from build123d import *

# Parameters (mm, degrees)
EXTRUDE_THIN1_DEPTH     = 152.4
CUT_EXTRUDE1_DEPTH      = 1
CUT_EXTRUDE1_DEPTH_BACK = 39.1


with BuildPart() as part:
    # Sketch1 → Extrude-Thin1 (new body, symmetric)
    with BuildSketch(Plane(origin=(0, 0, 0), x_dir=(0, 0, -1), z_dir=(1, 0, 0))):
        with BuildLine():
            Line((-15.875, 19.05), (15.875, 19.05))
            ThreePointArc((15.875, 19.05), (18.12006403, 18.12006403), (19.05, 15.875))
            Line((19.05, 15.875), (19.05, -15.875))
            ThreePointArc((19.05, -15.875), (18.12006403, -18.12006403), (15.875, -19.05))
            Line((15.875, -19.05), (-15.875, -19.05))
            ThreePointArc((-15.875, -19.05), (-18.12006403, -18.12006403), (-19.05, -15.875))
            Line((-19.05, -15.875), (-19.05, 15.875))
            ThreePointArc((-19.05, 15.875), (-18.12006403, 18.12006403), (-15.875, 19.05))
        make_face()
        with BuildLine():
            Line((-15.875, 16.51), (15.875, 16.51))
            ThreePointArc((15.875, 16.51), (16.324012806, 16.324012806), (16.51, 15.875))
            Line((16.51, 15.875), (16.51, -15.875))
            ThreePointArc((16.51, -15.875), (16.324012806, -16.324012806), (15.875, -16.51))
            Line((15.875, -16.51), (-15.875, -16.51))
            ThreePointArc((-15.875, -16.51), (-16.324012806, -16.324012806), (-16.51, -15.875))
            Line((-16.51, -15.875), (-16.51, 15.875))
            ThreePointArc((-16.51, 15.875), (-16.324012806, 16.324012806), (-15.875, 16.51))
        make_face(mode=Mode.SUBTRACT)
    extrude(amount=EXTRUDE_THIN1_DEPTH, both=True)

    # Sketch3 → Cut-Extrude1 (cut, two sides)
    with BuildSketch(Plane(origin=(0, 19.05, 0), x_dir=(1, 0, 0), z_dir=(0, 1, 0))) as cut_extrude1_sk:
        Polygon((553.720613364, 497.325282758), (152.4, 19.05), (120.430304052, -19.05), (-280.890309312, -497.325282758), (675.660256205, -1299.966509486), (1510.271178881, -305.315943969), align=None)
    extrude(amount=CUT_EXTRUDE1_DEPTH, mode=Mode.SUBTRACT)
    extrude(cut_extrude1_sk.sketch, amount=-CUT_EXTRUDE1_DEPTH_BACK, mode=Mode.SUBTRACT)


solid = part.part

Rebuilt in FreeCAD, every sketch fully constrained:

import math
import FreeCAD as App
import Part
import Sketcher

V = App.Vector
Q = App.Units.Quantity

doc = App.newDocument("Part")
body = doc.addObject("PartDesign::Body", "Body")

# Sketch on YZ plane
sketch1 = doc.addObject("Sketcher::SketchObject", "Sketch")
body.addObject(sketch1)
sketch1.AttachmentSupport = (doc.YZ_Plane, [""])
sketch1.MapMode = "FlatFace"
sketch1.addGeometry([
    Part.LineSegment(V(19.05, -15.875, 0), V(19.05, 15.875, 0)),  # 0
    Part.ArcOfCircle(Part.Circle(V(15.875, 15.875, 0), V(0, 0, 1), 3.175), math.radians(0), math.radians(90)),  # 1
    Part.LineSegment(V(15.875, 19.05, 0), V(-15.875, 19.05, 0)),  # 2
    Part.ArcOfCircle(Part.Circle(V(-15.875, 15.875, 0), V(0, 0, 1), 3.175), math.radians(90), math.radians(180)),  # 3
    Part.LineSegment(V(-19.05, 15.875, 0), V(-19.05, -15.875, 0)),  # 4
    Part.ArcOfCircle(Part.Circle(V(-15.875, -15.875, 0), V(0, 0, 1), 3.175), math.radians(-180), math.radians(-90)),  # 5
    Part.LineSegment(V(-15.875, -19.05, 0), V(15.875, -19.05, 0)),  # 6
    Part.ArcOfCircle(Part.Circle(V(15.875, -15.875, 0), V(0, 0, 1), 3.175), math.radians(-90), math.radians(0)),  # 7
    Part.LineSegment(V(16.51, 15.875, 0), V(16.51, -15.875, 0)),  # 8
    Part.ArcOfCircle(Part.Circle(V(15.875, -15.875, 0), V(0, 0, 1), 0.635), math.radians(-90), math.radians(0)),  # 9
    Part.LineSegment(V(15.875, -16.51, 0), V(-15.875, -16.51, 0)),  # 10
    Part.ArcOfCircle(Part.Circle(V(-15.875, -15.875, 0), V(0, 0, 1), 0.635), math.radians(180), math.radians(270)),  # 11
    Part.LineSegment(V(-16.51, -15.875, 0), V(-16.51, 15.875, 0)),  # 12
    Part.ArcOfCircle(Part.Circle(V(-15.875, 15.875, 0), V(0, 0, 1), 0.635), math.radians(90), math.radians(180)),  # 13
    Part.LineSegment(V(-15.875, 16.51, 0), V(15.875, 16.51, 0)),  # 14
    Part.ArcOfCircle(Part.Circle(V(15.875, 15.875, 0), V(0, 0, 1), 0.635), math.radians(0), math.radians(90)),  # 15
], False)
sketch1.addConstraint([
    Sketcher.Constraint("Tangent", 0, 2, 1, 1),
    Sketcher.Constraint("Tangent", 1, 2, 2, 1),
    Sketcher.Constraint("Tangent", 2, 2, 3, 1),
    Sketcher.Constraint("Tangent", 3, 2, 4, 1),
    Sketcher.Constraint("Tangent", 4, 2, 5, 1),
    Sketcher.Constraint("Tangent", 5, 2, 6, 1),
    Sketcher.Constraint("Tangent", 6, 2, 7, 1),
    Sketcher.Constraint("Tangent", 7, 2, 0, 1),
    Sketcher.Constraint("Tangent", 8, 2, 9, 2),
    Sketcher.Constraint("Tangent", 9, 1, 10, 1),
    Sketcher.Constraint("Tangent", 10, 2, 11, 2),
    Sketcher.Constraint("Tangent", 11, 1, 12, 1),
    Sketcher.Constraint("Tangent", 12, 2, 13, 2),
    Sketcher.Constraint("Tangent", 13, 1, 14, 1),
    Sketcher.Constraint("Tangent", 14, 2, 15, 2),
    Sketcher.Constraint("Tangent", 15, 1, 8, 1),
    Sketcher.Constraint("Vertical", 0),
    Sketcher.Constraint("Horizontal", 2),
    Sketcher.Constraint("Vertical", 4),
    Sketcher.Constraint("Horizontal", 6),
    Sketcher.Constraint("Vertical", 8),
    Sketcher.Constraint("Horizontal", 10),
    Sketcher.Constraint("Vertical", 12),
    Sketcher.Constraint("Horizontal", 14),
    Sketcher.Constraint("Coincident", 9, 3, 7, 3),
    Sketcher.Constraint("Coincident", 11, 3, 5, 3),
    Sketcher.Constraint("Coincident", 13, 3, 3, 3),
    Sketcher.Constraint("Equal", 1, 3),
    Sketcher.Constraint("Equal", 3, 5),
    Sketcher.Constraint("Equal", 5, 7),
    Sketcher.Constraint("Equal", 13, 15),
    Sketcher.Constraint("Symmetric", 1, 3, 5, 3, -1, 1),
    Sketcher.Constraint("Equal", 14, 0),
    Sketcher.Constraint("Radius", 1, Q("0.125 in")),
    Sketcher.Constraint("Radius", 9, Q("0.025 in")),
    Sketcher.Constraint("DistanceX", 2, 2, 2, 1, Q("1.25 in")),
])
pad1 = doc.addObject("PartDesign::Pad", "Pad")
body.addObject(pad1)
pad1.Profile = sketch1
pad1.Length = Q("12 in")
pad1.Midplane = True

# Sketch on XZ plane
sketch2 = doc.addObject("Sketcher::SketchObject", "Sketch001")
body.addObject(sketch2)
sketch2.AttachmentSupport = (doc.XZ_Plane, [""])
sketch2.MapMode = "FlatFace"
sketch2.AttachmentOffset = App.Placement(V(0, 0, -0.75 * 25.4), App.Rotation())
sketch2.addGeometry([
    Part.LineSegment(V(553.720613, -497.325283, 0), V(152.4, -19.05, 0)),  # 0
    Part.LineSegment(V(152.4, -19.05, 0), V(120.430304, 19.05, 0)),  # 1
    Part.LineSegment(V(120.430304, 19.05, 0), V(-280.890309, 497.325283, 0)),  # 2
    Part.LineSegment(V(-280.890309, 497.325283, 0), V(675.660256, 1299.966509, 0)),  # 3
    Part.LineSegment(V(675.660256, 1299.966509, 0), V(1510.271179, 305.315944, 0)),  # 4
    Part.LineSegment(V(1510.271179, 305.315944, 0), V(553.720613, -497.325283, 0)),  # 5
], False)
sketch2.addConstraint([
    Sketcher.Constraint("Coincident", 0, 2, 1, 1),
    Sketcher.Constraint("Coincident", 1, 2, 2, 1),
    Sketcher.Constraint("Coincident", 2, 2, 3, 1),
    Sketcher.Constraint("Coincident", 3, 2, 4, 1),
    Sketcher.Constraint("Coincident", 4, 2, 5, 1),
    Sketcher.Constraint("Coincident", 5, 2, 0, 1),
    Sketcher.Constraint("Parallel", 0, 1),
    Sketcher.Constraint("Parallel", 1, 2),
    Sketcher.Constraint("Perpendicular", 2, 3),
    Sketcher.Constraint("Perpendicular", 3, 4),
    Sketcher.Constraint("Perpendicular", 4, 5),
    Sketcher.Constraint("Equal", 0, 2),
    Sketcher.Constraint("DistanceX", -1, 1, 0, 2, Q("6 in")),
    Sketcher.Constraint("Angle", 0, Q("130 deg")),
    Sketcher.Constraint("DistanceY", 0, 2, 1, 2, Q("1.5 in")),
    Sketcher.Constraint("DistanceY", 0, 2, -1, 1, Q("0.75 in")),
    Sketcher.Constraint("Distance", 4, Q("1298.424099 mm")),
    Sketcher.Constraint("Distance", 3, Q("1248.688081 mm")),
])
pocket1 = doc.addObject("PartDesign::Pocket", "Pocket")
body.addObject(pocket1)
pocket1.Profile = sketch2
pocket1.Type = "ThroughAll"
pocket1.Midplane = True

doc.recompute()
